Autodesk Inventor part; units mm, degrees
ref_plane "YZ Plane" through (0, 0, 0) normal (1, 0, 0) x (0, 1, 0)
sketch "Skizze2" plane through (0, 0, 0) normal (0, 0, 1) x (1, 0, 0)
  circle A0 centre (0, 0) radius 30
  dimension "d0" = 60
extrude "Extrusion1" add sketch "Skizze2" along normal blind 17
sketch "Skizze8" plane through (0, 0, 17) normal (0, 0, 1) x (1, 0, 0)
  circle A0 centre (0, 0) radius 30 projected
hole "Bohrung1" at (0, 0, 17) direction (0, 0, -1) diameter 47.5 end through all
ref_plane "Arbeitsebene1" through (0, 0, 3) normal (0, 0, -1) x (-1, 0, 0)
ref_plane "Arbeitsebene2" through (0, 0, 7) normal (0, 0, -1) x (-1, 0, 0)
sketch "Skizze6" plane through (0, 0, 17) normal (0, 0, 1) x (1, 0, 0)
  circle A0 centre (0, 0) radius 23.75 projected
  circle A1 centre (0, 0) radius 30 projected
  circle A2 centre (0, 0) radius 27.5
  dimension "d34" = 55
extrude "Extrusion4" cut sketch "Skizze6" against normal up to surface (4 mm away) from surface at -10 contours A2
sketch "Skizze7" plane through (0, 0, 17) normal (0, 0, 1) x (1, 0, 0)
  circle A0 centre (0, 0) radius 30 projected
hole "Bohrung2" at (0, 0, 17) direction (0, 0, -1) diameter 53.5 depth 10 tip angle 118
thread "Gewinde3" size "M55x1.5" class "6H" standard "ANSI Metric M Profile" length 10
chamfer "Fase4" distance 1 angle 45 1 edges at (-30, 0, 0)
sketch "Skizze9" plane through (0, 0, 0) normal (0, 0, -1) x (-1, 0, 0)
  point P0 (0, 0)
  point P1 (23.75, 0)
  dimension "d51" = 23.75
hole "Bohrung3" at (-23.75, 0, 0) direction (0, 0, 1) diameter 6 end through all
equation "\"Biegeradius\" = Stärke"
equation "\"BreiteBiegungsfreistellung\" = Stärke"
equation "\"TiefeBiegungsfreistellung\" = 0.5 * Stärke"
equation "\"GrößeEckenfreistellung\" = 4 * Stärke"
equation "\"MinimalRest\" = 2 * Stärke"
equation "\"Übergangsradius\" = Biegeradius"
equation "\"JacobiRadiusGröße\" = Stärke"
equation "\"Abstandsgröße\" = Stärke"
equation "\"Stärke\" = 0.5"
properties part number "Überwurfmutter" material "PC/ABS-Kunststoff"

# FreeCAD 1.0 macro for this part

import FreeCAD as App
import Part
import Sketcher

V = App.Vector
Q = App.Units.Quantity


def edges_at(feature, points):
    """Names of the edges that pass closest to the given points."""
    edges = feature.Shape.Edges
    near = lambda p: min(range(len(edges)), key=lambda i: edges[i].distToShape(Part.Vertex(*p))[0])
    return sorted({f"Edge{near(p) + 1}" for p in points})

doc = App.newDocument("Part")
body = doc.addObject("PartDesign::Body", "Body")

# Sketch on XY plane
sketch1 = body.newObject("Sketcher::SketchObject", "Sketch")
sketch1.AttachmentSupport = (doc.getObject("XY_Plane"), [""])
sketch1.MapMode = "FlatFace"
sketch1.addGeometry(Part.Circle(V(0, 0, 0), V(0, 0, 1), 30), False)
sketch1.addConstraint(Sketcher.Constraint("Coincident", 0, 3, -1, 1))
sketch1.addConstraint(Sketcher.Constraint("Diameter", 0, Q("60 mm")))
pad1 = body.newObject("PartDesign::Pad", "Pad")
pad1.Profile = sketch1
pad1.Length = 17

# Sketch on XY plane
sketch2 = body.newObject("Sketcher::SketchObject", "Sketch001")
sketch2.AttachmentSupport = (doc.getObject("XY_Plane"), [""])
sketch2.MapMode = "FlatFace"
sketch2.AttachmentOffset = App.Placement(V(0, 0, 17), App.Rotation())
sketch2.addGeometry(Part.Circle(V(0, 0, 0), V(0, 0, 1), 24), False)
sketch2.addConstraint(Sketcher.Constraint("Coincident", 0, 3, -1, 1))
sketch2.addConstraint(Sketcher.Constraint("Diameter", 0, Q("47.5 mm")))
doc.recompute()
hole = body.newObject("PartDesign::Hole", "Hole")
hole.Profile = sketch2
hole.ThreadType = "None"
hole.Diameter = 47.5
hole.DepthType = "ThroughAll"

# Sketch on XY plane
sketch3 = body.newObject("Sketcher::SketchObject", "Sketch002")
sketch3.AttachmentSupport = (doc.getObject("XY_Plane"), [""])
sketch3.MapMode = "FlatFace"
sketch3.AttachmentOffset = App.Placement(V(0, 0, 7), App.Rotation())
sketch3.addGeometry(Part.Circle(V(0, 0, 0), V(0, 0, 1), 28), False)
sketch3.addGeometry(Part.Circle(V(0, 0, 0), V(0, 0, 1), 24), False)
sketch3.addConstraint(Sketcher.Constraint("Coincident", 0, 3, -1, 1))
sketch3.addConstraint(Sketcher.Constraint("Coincident", 1, 3, -1, 1))
sketch3.addConstraint(Sketcher.Constraint("Diameter", 0, Q("55 mm")))
sketch3.addConstraint(Sketcher.Constraint("Diameter", 1, Q("47.5 mm")))
pocket1 = body.newObject("PartDesign::Pocket", "Pocket")
pocket1.Profile = sketch3
pocket1.Length = 4

# Sketch on XY plane
sketch4 = body.newObject("Sketcher::SketchObject", "Sketch003")
sketch4.AttachmentSupport = (doc.getObject("XY_Plane"), [""])
sketch4.MapMode = "FlatFace"
sketch4.AttachmentOffset = App.Placement(V(0, 0, 17), App.Rotation())
sketch4.addGeometry(Part.Circle(V(0, 0, 0), V(0, 0, 1), 27), False)
sketch4.addConstraint(Sketcher.Constraint("Coincident", 0, 3, -1, 1))
sketch4.addConstraint(Sketcher.Constraint("Diameter", 0, Q("53.5 mm")))
doc.recompute()
hole2 = body.newObject("PartDesign::Hole", "Hole001")
hole2.Profile = sketch4
hole2.ThreadType = "None"
hole2.Diameter = 53.5
hole2.DepthType = "Dimension"
hole2.Depth = 10
hole2.DrillPoint = "Angled"
hole2.DrillPointAngle = 118
doc.recompute()

chamfer = body.newObject("PartDesign::Chamfer", "Chamfer")
chamfer.Base = (hole2, edges_at(hole2, [(-30, 0, 0)]))
chamfer.Size = 1

# Sketch on XY plane
sketch5 = body.newObject("Sketcher::SketchObject", "Sketch004")
sketch5.AttachmentSupport = (doc.getObject("XY_Plane"), [""])
sketch5.MapMode = "FlatFace"
sketch5.addGeometry(Part.Circle(V(-23.8, 0, 0), V(0, 0, 1), 3), False)
sketch5.addConstraint(Sketcher.Constraint("PointOnObject", 0, 3, -1))
sketch5.addConstraint(Sketcher.Constraint("Diameter", 0, Q("6 mm")))
sketch5.addConstraint(Sketcher.Constraint("DistanceX", 0, 3, -1, 1, Q("23.75 mm")))
doc.recompute()
hole3 = body.newObject("PartDesign::Hole", "Hole002")
hole3.Profile = sketch5
hole3.ThreadType = "None"
hole3.Diameter = 6
hole3.DepthType = "ThroughAll"
hole3.Reversed = True

doc.recompute()
